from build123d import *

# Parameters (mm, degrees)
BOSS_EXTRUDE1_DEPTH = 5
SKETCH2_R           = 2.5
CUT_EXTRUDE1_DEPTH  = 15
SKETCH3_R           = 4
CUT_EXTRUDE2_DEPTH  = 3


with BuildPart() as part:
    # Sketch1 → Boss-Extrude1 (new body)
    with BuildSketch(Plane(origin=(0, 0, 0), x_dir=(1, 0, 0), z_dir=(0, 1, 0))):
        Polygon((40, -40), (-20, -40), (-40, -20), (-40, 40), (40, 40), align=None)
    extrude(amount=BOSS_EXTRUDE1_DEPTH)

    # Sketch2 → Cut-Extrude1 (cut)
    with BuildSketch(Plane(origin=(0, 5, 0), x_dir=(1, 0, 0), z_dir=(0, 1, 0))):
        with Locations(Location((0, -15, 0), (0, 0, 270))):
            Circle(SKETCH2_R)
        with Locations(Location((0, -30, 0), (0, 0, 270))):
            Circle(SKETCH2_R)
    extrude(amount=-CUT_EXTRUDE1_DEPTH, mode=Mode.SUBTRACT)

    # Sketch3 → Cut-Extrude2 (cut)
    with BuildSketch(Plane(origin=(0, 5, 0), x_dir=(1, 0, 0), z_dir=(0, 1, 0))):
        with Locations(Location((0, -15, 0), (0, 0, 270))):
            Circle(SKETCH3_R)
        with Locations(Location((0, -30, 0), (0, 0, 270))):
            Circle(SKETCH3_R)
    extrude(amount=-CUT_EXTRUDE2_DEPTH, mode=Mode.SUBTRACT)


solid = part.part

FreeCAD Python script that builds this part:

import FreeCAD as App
import Part
import Sketcher

doc = App.newDocument("Part")
params = doc.addObject("Spreadsheet::Sheet", "Params")
for row, (alias, value) in enumerate([
    ("sketch1_width", "60 mm"),
    ("sketch1_width2", "80 mm"),
    ("pad1_length", "5 mm"),
    ("sketch2_diameter", "5 mm"),
    ("pocket1_length", "15 mm"),
    ("sketch3_diameter", "8 mm"),
    ("pocket2_length", "3 mm"),
], start=1):
    params.set(f"A{row}", alias)
    params.set(f"B{row}", "=" + value)
    params.setAlias(f"B{row}", alias)

body = doc.addObject("PartDesign::Body", "Body")

sketch1 = doc.addObject("Sketcher::SketchObject", "Sketch")
body.addObject(sketch1)
sketch1.AttachmentSupport = (doc.XZ_Plane, [""])
sketch1.MapMode = "FlatFace"
sketch1.addGeometry([
    Part.LineSegment(App.Vector(-20, 40, 0), App.Vector(40, 40, 0)),
    Part.LineSegment(App.Vector(40, 40, 0), App.Vector(40, -40, 0)),
    Part.LineSegment(App.Vector(40, -40, 0), App.Vector(-40, -40, 0)),
    Part.LineSegment(App.Vector(-40, -40, 0), App.Vector(-40, 20, 0)),
    Part.LineSegment(App.Vector(-40, 20, 0), App.Vector(-20, 40, 0)),
], False)
sketch1.addConstraint([
    Sketcher.Constraint("Coincident", 0, 2, 1, 1),
    Sketcher.Constraint("Coincident", 1, 2, 2, 1),
    Sketcher.Constraint("Coincident", 2, 2, 3, 1),
    Sketcher.Constraint("Coincident", 3, 2, 4, 1),
    Sketcher.Constraint("Coincident", 4, 2, 0, 1),
    Sketcher.Constraint("Horizontal", 0),
    Sketcher.Constraint("Vertical", 1),
    Sketcher.Constraint("Horizontal", 2),
    Sketcher.Constraint("Vertical", 3),
    Sketcher.Constraint("Symmetric", 0, 2, 2, 2, -1, 1),
    Sketcher.Constraint("Equal", 2, 1),
    Sketcher.Constraint("Equal", 0, 3),
    Sketcher.Constraint("DistanceX", 0, 1, 0, 2, 60.0),
    Sketcher.Constraint("DistanceX", 2, 2, 2, 1, 80.0),
])
sketch1.setExpression("Constraints[12]", "Params.sketch1_width")
sketch1.setExpression("Constraints[13]", "Params.sketch1_width2")
pad1 = doc.addObject("PartDesign::Pad", "Pad")
body.addObject(pad1)
pad1.Profile = sketch1
pad1.setExpression("Length", "Params.pad1_length")
pad1.Reversed = True

sketch2 = doc.addObject("Sketcher::SketchObject", "Sketch001")
body.addObject(sketch2)
sketch2.AttachmentSupport = (doc.XZ_Plane, [""])
sketch2.MapMode = "FlatFace"
sketch2.AttachmentOffset = App.Placement(App.Vector(0, 0, -5), App.Rotation())
sketch2.addGeometry([
    Part.Circle(App.Vector(0, 15, 0), App.Vector(0, 0, 1), 2.5),
    Part.Circle(App.Vector(0, 30, 0), App.Vector(0, 0, 1), 2.5),
], False)
sketch2.addConstraint([
    Sketcher.Constraint("Equal", 0, 1),
    Sketcher.Constraint("PointOnObject", 0, 3, -2),
    Sketcher.Constraint("PointOnObject", 1, 3, -2),
    Sketcher.Constraint("Diameter", 0, 5.0),
    Sketcher.Constraint("DistanceY", -1, 1, 0, 3, 15.0),
    Sketcher.Constraint("DistanceY", -1, 1, 1, 3, 30.0),
])
sketch2.setExpression("Constraints[3]", "Params.sketch2_diameter")
pocket1 = doc.addObject("PartDesign::Pocket", "Pocket")
body.addObject(pocket1)
pocket1.Profile = sketch2
pocket1.setExpression("Length", "Params.pocket1_length")
pocket1.Reversed = True

sketch3 = doc.addObject("Sketcher::SketchObject", "Sketch002")
body.addObject(sketch3)
sketch3.AttachmentSupport = (doc.XZ_Plane, [""])
sketch3.MapMode = "FlatFace"
sketch3.AttachmentOffset = App.Placement(App.Vector(0, 0, -5), App.Rotation())
sketch3.addGeometry([
    Part.Circle(App.Vector(0, 15, 0), App.Vector(0, 0, 1), 4),
    Part.Circle(App.Vector(0, 30, 0), App.Vector(0, 0, 1), 4),
], False)
sketch3.addConstraint([
    Sketcher.Constraint("Equal", 0, 1),
    Sketcher.Constraint("PointOnObject", 0, 3, -2),
    Sketcher.Constraint("PointOnObject", 1, 3, -2),
    Sketcher.Constraint("Diameter", 0, 8.0),
    Sketcher.Constraint("DistanceY", -1, 1, 0, 3, 15.0),
    Sketcher.Constraint("DistanceY", -1, 1, 1, 3, 30.0),
])
sketch3.setExpression("Constraints[3]", "Params.sketch3_diameter")
pocket2 = doc.addObject("PartDesign::Pocket", "Pocket001")
body.addObject(pocket2)
pocket2.Profile = sketch3
pocket2.setExpression("Length", "Params.pocket2_length")
pocket2.Reversed = True

doc.recompute()
